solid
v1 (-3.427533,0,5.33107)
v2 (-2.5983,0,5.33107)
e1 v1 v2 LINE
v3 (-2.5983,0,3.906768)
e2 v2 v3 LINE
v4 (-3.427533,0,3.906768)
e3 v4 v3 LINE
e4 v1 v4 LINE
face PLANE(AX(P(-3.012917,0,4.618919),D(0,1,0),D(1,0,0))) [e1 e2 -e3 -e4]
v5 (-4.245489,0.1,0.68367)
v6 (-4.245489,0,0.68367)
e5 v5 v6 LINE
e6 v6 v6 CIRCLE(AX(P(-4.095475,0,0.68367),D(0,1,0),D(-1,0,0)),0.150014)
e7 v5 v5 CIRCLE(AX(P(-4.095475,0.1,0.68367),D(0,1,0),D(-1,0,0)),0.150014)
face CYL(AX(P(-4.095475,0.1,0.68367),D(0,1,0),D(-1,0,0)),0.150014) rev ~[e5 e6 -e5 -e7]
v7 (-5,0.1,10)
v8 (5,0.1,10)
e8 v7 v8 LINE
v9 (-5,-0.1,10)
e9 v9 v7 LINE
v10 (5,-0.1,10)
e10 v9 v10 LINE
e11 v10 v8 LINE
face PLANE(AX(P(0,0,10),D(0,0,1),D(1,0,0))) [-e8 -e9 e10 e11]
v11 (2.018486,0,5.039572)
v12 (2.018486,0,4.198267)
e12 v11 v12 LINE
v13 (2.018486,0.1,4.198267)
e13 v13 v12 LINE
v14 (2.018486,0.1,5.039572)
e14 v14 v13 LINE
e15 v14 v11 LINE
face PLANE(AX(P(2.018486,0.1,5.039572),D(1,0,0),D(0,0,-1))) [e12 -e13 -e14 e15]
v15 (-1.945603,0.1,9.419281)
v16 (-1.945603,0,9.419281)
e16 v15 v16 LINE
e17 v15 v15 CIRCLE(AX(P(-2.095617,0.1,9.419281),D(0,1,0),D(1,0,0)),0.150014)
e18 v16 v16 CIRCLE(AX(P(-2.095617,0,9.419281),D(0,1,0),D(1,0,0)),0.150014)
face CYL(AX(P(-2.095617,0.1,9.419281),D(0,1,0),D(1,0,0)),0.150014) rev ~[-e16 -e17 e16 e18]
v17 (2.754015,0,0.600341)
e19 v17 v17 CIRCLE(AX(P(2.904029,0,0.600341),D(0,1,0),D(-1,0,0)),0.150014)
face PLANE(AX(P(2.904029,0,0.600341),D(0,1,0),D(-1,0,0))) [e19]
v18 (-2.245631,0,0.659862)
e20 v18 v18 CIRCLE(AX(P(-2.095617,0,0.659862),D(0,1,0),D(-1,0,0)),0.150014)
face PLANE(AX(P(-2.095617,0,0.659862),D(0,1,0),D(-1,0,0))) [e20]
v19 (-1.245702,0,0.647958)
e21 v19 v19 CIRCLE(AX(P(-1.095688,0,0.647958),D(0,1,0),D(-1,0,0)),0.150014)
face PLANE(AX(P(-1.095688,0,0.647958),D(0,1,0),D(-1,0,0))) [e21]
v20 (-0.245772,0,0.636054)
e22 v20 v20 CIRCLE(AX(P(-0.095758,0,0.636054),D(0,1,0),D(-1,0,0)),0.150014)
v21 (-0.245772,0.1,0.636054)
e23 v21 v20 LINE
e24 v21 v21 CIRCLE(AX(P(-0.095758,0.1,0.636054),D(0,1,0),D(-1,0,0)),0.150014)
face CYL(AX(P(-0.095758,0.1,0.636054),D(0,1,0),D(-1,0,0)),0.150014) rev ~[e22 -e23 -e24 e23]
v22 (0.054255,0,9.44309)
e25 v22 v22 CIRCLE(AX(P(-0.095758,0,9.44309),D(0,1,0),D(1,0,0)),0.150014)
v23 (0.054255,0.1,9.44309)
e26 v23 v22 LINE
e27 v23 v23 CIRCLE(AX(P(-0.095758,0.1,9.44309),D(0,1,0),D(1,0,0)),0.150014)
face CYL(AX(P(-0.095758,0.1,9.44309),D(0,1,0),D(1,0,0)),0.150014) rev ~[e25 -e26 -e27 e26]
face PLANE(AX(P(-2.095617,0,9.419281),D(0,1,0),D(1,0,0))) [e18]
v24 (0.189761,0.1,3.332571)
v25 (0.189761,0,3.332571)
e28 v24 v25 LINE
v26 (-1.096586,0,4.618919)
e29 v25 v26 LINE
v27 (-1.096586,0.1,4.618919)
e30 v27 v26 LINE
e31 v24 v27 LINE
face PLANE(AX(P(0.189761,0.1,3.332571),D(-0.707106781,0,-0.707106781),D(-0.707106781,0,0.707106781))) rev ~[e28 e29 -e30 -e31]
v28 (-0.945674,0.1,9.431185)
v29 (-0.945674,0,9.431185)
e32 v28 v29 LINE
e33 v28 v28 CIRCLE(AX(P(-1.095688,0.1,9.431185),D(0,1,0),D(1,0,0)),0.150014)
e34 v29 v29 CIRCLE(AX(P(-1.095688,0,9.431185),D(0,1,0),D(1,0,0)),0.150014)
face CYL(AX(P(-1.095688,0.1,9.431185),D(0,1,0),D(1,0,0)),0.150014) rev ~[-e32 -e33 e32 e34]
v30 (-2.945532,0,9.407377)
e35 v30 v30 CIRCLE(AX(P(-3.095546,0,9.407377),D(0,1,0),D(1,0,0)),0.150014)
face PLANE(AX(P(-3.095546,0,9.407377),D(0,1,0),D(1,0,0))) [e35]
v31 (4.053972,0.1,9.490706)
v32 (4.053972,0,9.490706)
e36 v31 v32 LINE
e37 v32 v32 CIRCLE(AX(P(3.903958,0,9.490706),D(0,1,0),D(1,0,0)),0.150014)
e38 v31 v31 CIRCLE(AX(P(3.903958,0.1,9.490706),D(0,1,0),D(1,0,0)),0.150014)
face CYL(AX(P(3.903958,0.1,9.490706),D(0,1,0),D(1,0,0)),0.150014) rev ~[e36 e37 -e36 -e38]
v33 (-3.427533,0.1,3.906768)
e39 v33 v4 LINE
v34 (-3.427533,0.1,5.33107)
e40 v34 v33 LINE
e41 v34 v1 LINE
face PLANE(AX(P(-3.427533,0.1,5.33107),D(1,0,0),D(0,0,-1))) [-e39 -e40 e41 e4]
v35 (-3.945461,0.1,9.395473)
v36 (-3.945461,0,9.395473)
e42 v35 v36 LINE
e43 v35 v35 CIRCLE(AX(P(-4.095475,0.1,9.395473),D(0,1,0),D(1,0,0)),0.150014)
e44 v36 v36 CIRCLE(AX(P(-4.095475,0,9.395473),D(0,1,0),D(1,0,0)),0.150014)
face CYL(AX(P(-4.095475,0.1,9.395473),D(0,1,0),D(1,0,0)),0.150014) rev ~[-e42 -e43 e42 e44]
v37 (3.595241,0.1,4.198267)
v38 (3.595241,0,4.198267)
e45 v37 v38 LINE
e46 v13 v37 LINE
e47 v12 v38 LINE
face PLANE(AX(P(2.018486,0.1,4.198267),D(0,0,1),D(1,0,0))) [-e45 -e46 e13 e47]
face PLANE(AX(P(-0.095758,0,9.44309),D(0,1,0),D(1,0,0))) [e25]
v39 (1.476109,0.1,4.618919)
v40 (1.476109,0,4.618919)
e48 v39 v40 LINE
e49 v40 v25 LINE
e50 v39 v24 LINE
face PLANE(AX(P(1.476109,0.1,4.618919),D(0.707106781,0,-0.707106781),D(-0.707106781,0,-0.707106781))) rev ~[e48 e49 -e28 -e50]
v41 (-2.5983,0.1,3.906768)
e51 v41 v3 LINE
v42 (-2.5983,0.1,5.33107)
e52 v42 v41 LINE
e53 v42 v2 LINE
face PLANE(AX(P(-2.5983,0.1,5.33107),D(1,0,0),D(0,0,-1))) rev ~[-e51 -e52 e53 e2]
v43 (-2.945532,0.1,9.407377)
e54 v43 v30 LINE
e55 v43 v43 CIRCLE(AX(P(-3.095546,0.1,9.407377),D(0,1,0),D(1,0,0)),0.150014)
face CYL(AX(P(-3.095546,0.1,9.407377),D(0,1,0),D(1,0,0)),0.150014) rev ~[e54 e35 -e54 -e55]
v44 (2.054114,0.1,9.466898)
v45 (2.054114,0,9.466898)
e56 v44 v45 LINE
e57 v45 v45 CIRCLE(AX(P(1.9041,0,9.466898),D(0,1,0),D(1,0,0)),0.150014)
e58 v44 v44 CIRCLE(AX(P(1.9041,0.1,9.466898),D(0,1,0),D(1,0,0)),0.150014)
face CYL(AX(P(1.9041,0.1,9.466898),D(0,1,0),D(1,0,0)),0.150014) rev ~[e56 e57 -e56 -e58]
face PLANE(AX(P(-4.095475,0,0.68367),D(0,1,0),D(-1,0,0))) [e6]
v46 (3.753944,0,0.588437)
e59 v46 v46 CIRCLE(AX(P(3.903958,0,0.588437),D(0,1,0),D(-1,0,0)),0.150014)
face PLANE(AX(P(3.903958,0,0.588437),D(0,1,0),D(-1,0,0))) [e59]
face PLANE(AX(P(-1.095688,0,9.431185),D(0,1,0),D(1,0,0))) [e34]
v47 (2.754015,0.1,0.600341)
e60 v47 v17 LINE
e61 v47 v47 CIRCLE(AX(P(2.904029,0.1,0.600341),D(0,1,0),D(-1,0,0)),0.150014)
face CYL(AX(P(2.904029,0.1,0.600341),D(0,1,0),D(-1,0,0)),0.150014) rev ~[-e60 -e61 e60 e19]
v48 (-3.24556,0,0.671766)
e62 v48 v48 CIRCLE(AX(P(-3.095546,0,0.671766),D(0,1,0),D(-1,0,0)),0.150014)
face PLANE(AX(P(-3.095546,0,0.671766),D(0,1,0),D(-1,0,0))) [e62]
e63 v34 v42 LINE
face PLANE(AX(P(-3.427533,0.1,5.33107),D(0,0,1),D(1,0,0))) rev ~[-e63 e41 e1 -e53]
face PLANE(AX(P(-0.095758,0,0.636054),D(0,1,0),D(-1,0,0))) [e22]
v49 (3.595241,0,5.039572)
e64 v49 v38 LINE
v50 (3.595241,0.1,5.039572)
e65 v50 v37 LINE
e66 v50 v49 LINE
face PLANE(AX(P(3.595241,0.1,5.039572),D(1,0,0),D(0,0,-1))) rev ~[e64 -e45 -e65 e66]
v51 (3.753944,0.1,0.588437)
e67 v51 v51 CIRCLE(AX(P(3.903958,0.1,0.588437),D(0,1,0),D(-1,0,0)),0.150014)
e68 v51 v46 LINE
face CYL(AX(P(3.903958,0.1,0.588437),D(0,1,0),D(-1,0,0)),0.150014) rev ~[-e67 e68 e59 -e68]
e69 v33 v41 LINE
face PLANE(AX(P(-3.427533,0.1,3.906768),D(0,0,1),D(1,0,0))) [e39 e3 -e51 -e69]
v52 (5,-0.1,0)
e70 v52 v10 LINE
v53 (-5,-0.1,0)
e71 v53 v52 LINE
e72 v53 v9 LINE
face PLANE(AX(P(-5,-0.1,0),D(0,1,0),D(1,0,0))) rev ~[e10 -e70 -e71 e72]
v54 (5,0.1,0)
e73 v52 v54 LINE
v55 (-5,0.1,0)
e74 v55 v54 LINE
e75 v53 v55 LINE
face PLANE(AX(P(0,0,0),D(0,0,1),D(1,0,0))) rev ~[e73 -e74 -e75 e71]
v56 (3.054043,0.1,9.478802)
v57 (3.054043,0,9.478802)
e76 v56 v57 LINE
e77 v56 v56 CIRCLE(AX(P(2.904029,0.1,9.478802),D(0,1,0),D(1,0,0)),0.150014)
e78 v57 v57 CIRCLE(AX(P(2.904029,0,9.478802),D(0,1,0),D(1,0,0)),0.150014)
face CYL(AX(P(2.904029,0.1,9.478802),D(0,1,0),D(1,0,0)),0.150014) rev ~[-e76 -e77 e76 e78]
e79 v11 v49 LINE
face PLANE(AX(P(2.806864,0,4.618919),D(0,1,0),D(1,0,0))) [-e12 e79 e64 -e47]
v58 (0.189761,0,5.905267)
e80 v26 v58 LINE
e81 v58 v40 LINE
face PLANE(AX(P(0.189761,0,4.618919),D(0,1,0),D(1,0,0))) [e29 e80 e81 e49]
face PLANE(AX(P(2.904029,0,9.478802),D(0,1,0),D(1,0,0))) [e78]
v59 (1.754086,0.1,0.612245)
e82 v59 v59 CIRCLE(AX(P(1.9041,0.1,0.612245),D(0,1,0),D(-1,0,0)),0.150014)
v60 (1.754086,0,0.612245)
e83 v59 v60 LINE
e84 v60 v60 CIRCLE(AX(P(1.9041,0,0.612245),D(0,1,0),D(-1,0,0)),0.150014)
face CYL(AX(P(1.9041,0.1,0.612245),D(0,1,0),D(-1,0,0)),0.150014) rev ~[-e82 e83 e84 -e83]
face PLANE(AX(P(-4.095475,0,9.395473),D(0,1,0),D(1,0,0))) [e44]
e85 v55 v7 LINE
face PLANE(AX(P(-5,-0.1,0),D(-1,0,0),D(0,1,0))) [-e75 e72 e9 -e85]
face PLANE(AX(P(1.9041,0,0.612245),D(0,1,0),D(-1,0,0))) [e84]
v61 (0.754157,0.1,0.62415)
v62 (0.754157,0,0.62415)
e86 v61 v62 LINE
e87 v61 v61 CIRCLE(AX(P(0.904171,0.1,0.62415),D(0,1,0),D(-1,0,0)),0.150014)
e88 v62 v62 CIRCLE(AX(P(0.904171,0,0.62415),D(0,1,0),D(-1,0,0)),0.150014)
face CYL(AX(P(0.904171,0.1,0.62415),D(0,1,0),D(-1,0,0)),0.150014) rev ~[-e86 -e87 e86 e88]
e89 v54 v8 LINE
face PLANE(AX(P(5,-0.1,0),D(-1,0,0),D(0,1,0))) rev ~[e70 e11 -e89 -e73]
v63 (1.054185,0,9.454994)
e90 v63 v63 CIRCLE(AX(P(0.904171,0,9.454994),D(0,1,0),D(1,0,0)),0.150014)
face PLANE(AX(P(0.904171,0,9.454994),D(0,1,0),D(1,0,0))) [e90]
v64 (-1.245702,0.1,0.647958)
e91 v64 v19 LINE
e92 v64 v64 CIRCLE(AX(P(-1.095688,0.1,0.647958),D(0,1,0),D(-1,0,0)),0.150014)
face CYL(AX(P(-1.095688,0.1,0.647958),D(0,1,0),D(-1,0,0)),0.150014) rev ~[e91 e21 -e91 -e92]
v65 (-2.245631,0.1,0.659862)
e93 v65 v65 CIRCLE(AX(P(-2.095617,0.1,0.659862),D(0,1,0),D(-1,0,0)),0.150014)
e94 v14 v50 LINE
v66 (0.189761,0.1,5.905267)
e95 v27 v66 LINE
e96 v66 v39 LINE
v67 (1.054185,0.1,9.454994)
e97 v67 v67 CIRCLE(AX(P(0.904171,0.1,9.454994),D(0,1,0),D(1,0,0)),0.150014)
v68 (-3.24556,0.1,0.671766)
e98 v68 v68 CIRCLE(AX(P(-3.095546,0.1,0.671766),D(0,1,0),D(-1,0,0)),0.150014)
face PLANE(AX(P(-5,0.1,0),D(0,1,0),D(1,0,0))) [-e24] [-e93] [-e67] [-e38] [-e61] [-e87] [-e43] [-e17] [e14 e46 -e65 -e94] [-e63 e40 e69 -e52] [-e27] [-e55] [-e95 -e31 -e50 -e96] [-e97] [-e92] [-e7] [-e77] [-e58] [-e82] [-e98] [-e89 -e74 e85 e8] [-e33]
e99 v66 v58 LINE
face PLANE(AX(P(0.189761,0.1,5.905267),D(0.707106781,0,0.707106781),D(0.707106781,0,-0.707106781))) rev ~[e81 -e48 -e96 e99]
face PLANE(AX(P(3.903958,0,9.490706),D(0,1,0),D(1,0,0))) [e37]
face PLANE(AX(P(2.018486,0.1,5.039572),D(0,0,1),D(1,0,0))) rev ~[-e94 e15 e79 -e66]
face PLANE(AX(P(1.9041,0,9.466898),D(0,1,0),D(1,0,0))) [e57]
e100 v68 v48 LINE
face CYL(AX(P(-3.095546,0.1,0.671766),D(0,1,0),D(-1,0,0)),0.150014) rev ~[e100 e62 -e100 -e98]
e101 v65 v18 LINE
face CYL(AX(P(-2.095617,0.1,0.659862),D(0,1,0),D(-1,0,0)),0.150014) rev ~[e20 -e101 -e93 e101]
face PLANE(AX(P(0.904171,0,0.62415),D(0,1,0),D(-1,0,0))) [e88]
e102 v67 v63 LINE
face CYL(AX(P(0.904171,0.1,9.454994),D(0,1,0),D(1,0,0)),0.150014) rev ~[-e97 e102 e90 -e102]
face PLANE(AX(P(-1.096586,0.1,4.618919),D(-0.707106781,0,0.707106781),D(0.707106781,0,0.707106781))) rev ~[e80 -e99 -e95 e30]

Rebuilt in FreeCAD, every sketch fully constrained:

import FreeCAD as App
import Part
import Sketcher

V = App.Vector


def add_polygon(sketch, points):
    """Adds a closed chain of lines whose ends are joined by coincident constraints."""
    first, n = sketch.GeometryCount, len(points)
    for a, b in zip(points, points[1:] + points[:1]):
        sketch.addGeometry(Part.LineSegment(App.Vector(*a, 0), App.Vector(*b, 0)), False)
    for i in range(n):
        sketch.addConstraint(Sketcher.Constraint("Coincident", first + i, 2, first + (i + 1) % n, 1))

doc = App.newDocument("Part")
body = doc.addObject("PartDesign::Body", "Body")

# Sketch on XY plane
sketch1 = body.newObject("Sketcher::SketchObject", "Sketch")
sketch1.AttachmentSupport = (doc.getObject("XY_Plane"), [""])
sketch1.MapMode = "FlatFace"
add_polygon(sketch1, [(-5, 0.1), (-5, -0.1), (5, -0.1), (5, 0.1)])  # lines 0-3
sketch1.addConstraint(Sketcher.Constraint("Vertical", 0))
sketch1.addConstraint(Sketcher.Constraint("Horizontal", 1))
sketch1.addConstraint(Sketcher.Constraint("Vertical", 2))
sketch1.addConstraint(Sketcher.Constraint("Horizontal", 3))
sketch1.addConstraint(Sketcher.Constraint("Symmetric", 0, 2, 2, 2, -1, 1))
sketch1.addConstraint(Sketcher.Constraint("DistanceX", 1, 1, 1, 2, 10.0))
sketch1.addConstraint(Sketcher.Constraint("DistanceY", 0, 2, 0, 1, 0.2))
pad1 = body.newObject("PartDesign::Pad", "Pad")
pad1.Profile = sketch1
pad1.Length = 10

# Sketch on XZ plane
sketch2 = body.newObject("Sketcher::SketchObject", "Sketch001")
sketch2.AttachmentSupport = (doc.getObject("XZ_Plane"), [""])
sketch2.MapMode = "FlatFace"
sketch2.AttachmentOffset = App.Placement(V(0, 0, -0.1), App.Rotation())
sketch2.addGeometry(Part.Circle(V(3.903958, 0.588437, 0), V(0, 0, 1), 0.150014), False)  # 0
sketch2.addGeometry(Part.Circle(V(2.904029, 0.600341, 0), V(0, 0, 1), 0.150014), False)  # 1
sketch2.addGeometry(Part.Circle(V(1.9041, 0.612245, 0), V(0, 0, 1), 0.150014), False)  # 2
sketch2.addGeometry(Part.Circle(V(0.904171, 0.62415, 0), V(0, 0, 1), 0.150014), False)  # 3
sketch2.addGeometry(Part.Circle(V(-0.095758, 0.636054, 0), V(0, 0, 1), 0.150014), False)  # 4
sketch2.addGeometry(Part.Circle(V(-1.095688, 0.647958, 0), V(0, 0, 1), 0.150014), False)  # 5
sketch2.addGeometry(Part.Circle(V(-2.095617, 0.659862, 0), V(0, 0, 1), 0.150014), False)  # 6
sketch2.addGeometry(Part.Circle(V(-3.095546, 0.671766, 0), V(0, 0, 1), 0.150014), False)  # 7
sketch2.addGeometry(Part.Circle(V(-4.095475, 0.68367, 0), V(0, 0, 1), 0.150014), False)  # 8
sketch2.addGeometry(Part.Circle(V(-4.095475, 9.395473, 0), V(0, 0, 1), 0.150014), False)  # 9
sketch2.addGeometry(Part.Circle(V(-3.095546, 9.407377, 0), V(0, 0, 1), 0.150014), False)  # 10
sketch2.addGeometry(Part.Circle(V(-2.095617, 9.419281, 0), V(0, 0, 1), 0.150014), False)  # 11
sketch2.addGeometry(Part.Circle(V(-1.095688, 9.431185, 0), V(0, 0, 1), 0.150014), False)  # 12
sketch2.addGeometry(Part.Circle(V(0.904171, 9.454994, 0), V(0, 0, 1), 0.150014), False)  # 13
sketch2.addGeometry(Part.Circle(V(-0.095758, 9.44309, 0), V(0, 0, 1), 0.150014), False)  # 14
sketch2.addGeometry(Part.Circle(V(1.9041, 9.466898, 0), V(0, 0, 1), 0.150014), False)  # 15
sketch2.addGeometry(Part.Circle(V(2.904029, 9.478802, 0), V(0, 0, 1), 0.150014), False)  # 16
sketch2.addGeometry(Part.Circle(V(3.903958, 9.490706, 0), V(0, 0, 1), 0.150014), False)  # 17
add_polygon(sketch2, [(1.476109, 4.618919), (0.189761, 3.332571), (-1.096586, 4.618919), (0.189761, 5.905267)])  # lines 18-21
add_polygon(sketch2, [(-3.427533, 3.906768), (-3.427533, 5.33107), (-2.5983, 5.33107), (-2.5983, 3.906768)])  # lines 22-25
add_polygon(sketch2, [(2.018486, 4.198267), (2.018486, 5.039572), (3.595241, 5.039572), (3.595241, 4.198267)])  # lines 26-29
sketch2.addConstraint(Sketcher.Constraint("Vertical", 22))
sketch2.addConstraint(Sketcher.Constraint("Horizontal", 23))
sketch2.addConstraint(Sketcher.Constraint("Vertical", 24))
sketch2.addConstraint(Sketcher.Constraint("Horizontal", 25))
sketch2.addConstraint(Sketcher.Constraint("Vertical", 26))
sketch2.addConstraint(Sketcher.Constraint("Horizontal", 27))
sketch2.addConstraint(Sketcher.Constraint("Vertical", 28))
sketch2.addConstraint(Sketcher.Constraint("Horizontal", 29))
sketch2.addConstraint(Sketcher.Constraint("Equal", 0, 1))
sketch2.addConstraint(Sketcher.Constraint("Equal", 1, 2))
sketch2.addConstraint(Sketcher.Constraint("Equal", 2, 3))
sketch2.addConstraint(Sketcher.Constraint("Equal", 3, 4))
sketch2.addConstraint(Sketcher.Constraint("Equal", 4, 5))
sketch2.addConstraint(Sketcher.Constraint("Equal", 5, 6))
sketch2.addConstraint(Sketcher.Constraint("Equal", 6, 7))
sketch2.addConstraint(Sketcher.Constraint("Equal", 7, 8))
sketch2.addConstraint(Sketcher.Constraint("Equal", 8, 9))
sketch2.addConstraint(Sketcher.Constraint("Equal", 9, 10))
sketch2.addConstraint(Sketcher.Constraint("Equal", 10, 11))
sketch2.addConstraint(Sketcher.Constraint("Equal", 11, 12))
sketch2.addConstraint(Sketcher.Constraint("Equal", 12, 13))
sketch2.addConstraint(Sketcher.Constraint("Equal", 13, 14))
sketch2.addConstraint(Sketcher.Constraint("Equal", 14, 15))
sketch2.addConstraint(Sketcher.Constraint("Equal", 15, 16))
sketch2.addConstraint(Sketcher.Constraint("Equal", 16, 17))
sketch2.addConstraint(Sketcher.Constraint("Perpendicular", 18, 19))
sketch2.addConstraint(Sketcher.Constraint("Perpendicular", 19, 20))
sketch2.addConstraint(Sketcher.Constraint("Perpendicular", 20, 21))
sketch2.addConstraint(Sketcher.Constraint("Horizontal", 19, 2, 21, 2))
sketch2.addConstraint(Sketcher.Constraint("Vertical", 8, 3, 9, 3))
sketch2.addConstraint(Sketcher.Constraint("Vertical", 7, 3, 10, 3))
sketch2.addConstraint(Sketcher.Constraint("Vertical", 6, 3, 11, 3))
sketch2.addConstraint(Sketcher.Constraint("Vertical", 5, 3, 12, 3))
sketch2.addConstraint(Sketcher.Constraint("Vertical", 3, 3, 13, 3))
sketch2.addConstraint(Sketcher.Constraint("Vertical", 4, 3, 14, 3))
sketch2.addConstraint(Sketcher.Constraint("Vertical", 2, 3, 15, 3))
sketch2.addConstraint(Sketcher.Constraint("Vertical", 1, 3, 16, 3))
sketch2.addConstraint(Sketcher.Constraint("Vertical", 0, 3, 17, 3))
sketch2.addConstraint(Sketcher.Constraint("Vertical", 18, 2, 20, 2))
sketch2.addConstraint(Sketcher.Constraint("Diameter", 0, 0.300028))
sketch2.addConstraint(Sketcher.Constraint("DistanceY", 22, 1, 22, 2, 1.424302))
sketch2.addConstraint(Sketcher.Constraint("DistanceY", 18, 2, 26, 2, 1.707))
sketch2.addConstraint(Sketcher.Constraint("DistanceX", -1, 1, 2, 3, 1.9041))
sketch2.addConstraint(Sketcher.Constraint("DistanceY", -1, 1, 16, 3, 9.478802))
sketch2.addConstraint(Sketcher.Constraint("DistanceX", 23, 2, -1, 1, 2.5983))
sketch2.addConstraint(Sketcher.Constraint("DistanceX", 19, 2, 5, 3, 0.000899))
sketch2.addConstraint(Sketcher.Constraint("DistanceY", 18, 2, 22, 2, 1.998498))
sketch2.addConstraint(Sketcher.Constraint("Distance", 18, 1.81917))
sketch2.addConstraint(Sketcher.Constraint("DistanceX", 23, 1, 23, 2, 0.829233))
sketch2.addConstraint(Sketcher.Constraint("DistanceX", 27, 1, 27, 2, 1.576756))
sketch2.addConstraint(Sketcher.Constraint("DistanceY", 26, 1, 26, 2, 0.841305))
sketch2.addConstraint(Sketcher.Constraint("DistanceX", -1, 1, 0, 3, 3.903958))
sketch2.addConstraint(Sketcher.Constraint("DistanceX", -1, 1, 1, 3, 2.904029))
sketch2.addConstraint(Sketcher.Constraint("DistanceY", -1, 1, 1, 3, 0.600341))
sketch2.addConstraint(Sketcher.Constraint("DistanceX", -1, 1, 3, 3, 0.904171))
sketch2.addConstraint(Sketcher.Constraint("DistanceY", -1, 1, 3, 3, 0.62415))
sketch2.addConstraint(Sketcher.Constraint("DistanceX", 4, 3, -1, 1, 0.095758))
sketch2.addConstraint(Sketcher.Constraint("DistanceY", -1, 1, 6, 3, 0.659862))
sketch2.addConstraint(Sketcher.Constraint("DistanceY", -1, 1, 8, 3, 0.68367))
sketch2.addConstraint(Sketcher.Constraint("DistanceY", -1, 1, 11, 3, 9.419281))
sketch2.addConstraint(Sketcher.Constraint("DistanceY", -1, 1, 14, 3, 9.44309))
sketch2.addConstraint(Sketcher.Constraint("DistanceX", -1, 1, 18, 2, 0.189761))
sketch2.addConstraint(Sketcher.Constraint("DistanceY", -1, 1, 18, 2, 3.332571))
sketch2.addConstraint(Sketcher.Constraint("DistanceX", -1, 1, 27, 2, 3.595241))
sketch2.addConstraint(Sketcher.Constraint("DistanceY", 0, 3, 2, 3, 0.023808))
sketch2.addConstraint(Sketcher.Constraint("DistanceY", 2, 3, 4, 3, 0.023808))
sketch2.addConstraint(Sketcher.Constraint("DistanceY", 3, 3, 5, 3, 0.023808))
sketch2.addConstraint(Sketcher.Constraint("DistanceY", 0, 3, 5, 3, 0.05952))
sketch2.addConstraint(Sketcher.Constraint("DistanceX", 6, 3, 5, 3, 0.999929))
sketch2.addConstraint(Sketcher.Constraint("DistanceX", 7, 3, 6, 3, 0.999929))
sketch2.addConstraint(Sketcher.Constraint("DistanceY", 5, 3, 7, 3, 0.023808))
sketch2.addConstraint(Sketcher.Constraint("DistanceX", 8, 3, 7, 3, 0.999929))
sketch2.addConstraint(Sketcher.Constraint("DistanceY", 6, 3, 9, 3, 8.735612))
sketch2.addConstraint(Sketcher.Constraint("DistanceY", 7, 3, 10, 3, 8.735612))
sketch2.addConstraint(Sketcher.Constraint("DistanceY", 10, 3, 12, 3, 0.023808))
sketch2.addConstraint(Sketcher.Constraint("DistanceY", 12, 3, 13, 3, 0.023808))
sketch2.addConstraint(Sketcher.Constraint("DistanceY", 14, 3, 15, 3, 0.023808))
sketch2.addConstraint(Sketcher.Constraint("DistanceY", 15, 3, 17, 3, 0.023808))
pocket1 = body.newObject("PartDesign::Pocket", "Pocket")
pocket1.Profile = sketch2
pocket1.Length = 0.1
pocket1.Reversed = True

doc.recompute()
